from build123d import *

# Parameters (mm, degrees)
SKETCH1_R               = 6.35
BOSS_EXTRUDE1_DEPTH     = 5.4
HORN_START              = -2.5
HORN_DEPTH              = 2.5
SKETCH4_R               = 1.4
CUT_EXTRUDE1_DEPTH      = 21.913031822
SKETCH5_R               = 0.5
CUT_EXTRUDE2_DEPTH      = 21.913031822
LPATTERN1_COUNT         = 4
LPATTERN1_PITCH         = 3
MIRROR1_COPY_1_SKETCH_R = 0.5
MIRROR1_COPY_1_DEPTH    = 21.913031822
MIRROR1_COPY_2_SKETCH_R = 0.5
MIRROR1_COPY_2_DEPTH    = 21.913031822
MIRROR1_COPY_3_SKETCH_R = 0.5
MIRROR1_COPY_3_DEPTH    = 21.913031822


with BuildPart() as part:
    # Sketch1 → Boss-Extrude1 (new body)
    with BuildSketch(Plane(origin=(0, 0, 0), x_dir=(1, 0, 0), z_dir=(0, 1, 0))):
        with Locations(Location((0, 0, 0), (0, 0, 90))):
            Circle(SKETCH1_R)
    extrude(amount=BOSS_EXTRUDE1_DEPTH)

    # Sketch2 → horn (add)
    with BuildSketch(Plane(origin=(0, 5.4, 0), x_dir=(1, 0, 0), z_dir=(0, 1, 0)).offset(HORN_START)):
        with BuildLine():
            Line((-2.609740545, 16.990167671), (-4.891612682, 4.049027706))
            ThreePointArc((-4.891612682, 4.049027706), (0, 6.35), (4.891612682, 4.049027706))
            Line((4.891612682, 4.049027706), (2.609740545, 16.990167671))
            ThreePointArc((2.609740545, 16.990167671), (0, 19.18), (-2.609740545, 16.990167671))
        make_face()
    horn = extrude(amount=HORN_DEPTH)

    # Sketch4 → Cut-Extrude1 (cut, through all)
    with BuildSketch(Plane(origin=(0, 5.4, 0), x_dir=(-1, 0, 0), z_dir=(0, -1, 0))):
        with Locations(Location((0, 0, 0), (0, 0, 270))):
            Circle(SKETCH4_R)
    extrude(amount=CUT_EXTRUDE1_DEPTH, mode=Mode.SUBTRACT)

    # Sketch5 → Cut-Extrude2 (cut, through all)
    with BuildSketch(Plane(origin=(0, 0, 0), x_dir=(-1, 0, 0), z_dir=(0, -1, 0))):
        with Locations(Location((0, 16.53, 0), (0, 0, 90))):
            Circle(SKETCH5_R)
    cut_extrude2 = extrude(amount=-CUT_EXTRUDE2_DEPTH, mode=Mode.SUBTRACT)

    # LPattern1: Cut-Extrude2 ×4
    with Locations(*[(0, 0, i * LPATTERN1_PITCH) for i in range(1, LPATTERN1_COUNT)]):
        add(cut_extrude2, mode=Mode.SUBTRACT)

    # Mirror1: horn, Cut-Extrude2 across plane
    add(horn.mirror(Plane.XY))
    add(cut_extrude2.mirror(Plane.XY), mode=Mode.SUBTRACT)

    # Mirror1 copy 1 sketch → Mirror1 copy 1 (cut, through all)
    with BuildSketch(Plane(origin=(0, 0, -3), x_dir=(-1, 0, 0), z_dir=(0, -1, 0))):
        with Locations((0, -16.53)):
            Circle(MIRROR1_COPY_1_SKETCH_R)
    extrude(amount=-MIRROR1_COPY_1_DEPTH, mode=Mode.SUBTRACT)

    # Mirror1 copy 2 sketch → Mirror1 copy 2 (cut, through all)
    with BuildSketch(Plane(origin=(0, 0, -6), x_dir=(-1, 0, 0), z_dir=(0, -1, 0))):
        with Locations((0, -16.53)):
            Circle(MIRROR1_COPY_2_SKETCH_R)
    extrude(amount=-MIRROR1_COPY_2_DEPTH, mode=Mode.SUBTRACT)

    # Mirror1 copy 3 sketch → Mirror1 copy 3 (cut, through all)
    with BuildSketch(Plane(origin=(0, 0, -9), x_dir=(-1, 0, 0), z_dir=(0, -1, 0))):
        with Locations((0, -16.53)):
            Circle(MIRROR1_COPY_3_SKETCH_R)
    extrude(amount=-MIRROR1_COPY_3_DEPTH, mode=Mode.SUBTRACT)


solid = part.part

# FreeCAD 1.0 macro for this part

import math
import FreeCAD as App
import Part
import Sketcher
from FreeCAD import Vector
Q = App.Units.Quantity

doc = App.newDocument("Part")
body = doc.addObject("PartDesign::Body", "Body")

sketch1 = body.newObject("Sketcher::SketchObject", "Sketch")
sketch1.AttachmentSupport = (doc.getObject("XZ_Plane"), [""])
sketch1.MapMode = "FlatFace"
sketch1.addGeometry(Part.Circle(Vector(0, 0, 0), Vector(0, 0, 1), 6.35), False)
sketch1.addConstraint(Sketcher.Constraint("Coincident", 0, 3, -1, 1))
sketch1.addConstraint(Sketcher.Constraint("Diameter", 0, 12.7))
pad1 = body.newObject("PartDesign::Pad", "Pad")
pad1.Profile = sketch1
pad1.Length = 5.4
pad1.Reversed = True

sketch2 = body.newObject("Sketcher::SketchObject", "Sketch001")
sketch2.AttachmentSupport = (doc.getObject("XZ_Plane"), [""])
sketch2.MapMode = "FlatFace"
sketch2.AttachmentOffset = App.Placement(Vector(0, 0, -2.9), App.Rotation())
sketch2.addGeometry(Part.LineSegment(Vector(-2.609741, -16.990168, 0), Vector(-4.891613, -4.049028, 0)), False)
sketch2.addGeometry(Part.ArcOfCircle(Part.Circle(Vector(0, 0, 0), Vector(0, 0, 1), 6.35), math.radians(-140.383775), math.radians(-39.616225)), False)
sketch2.addGeometry(Part.LineSegment(Vector(4.891613, -4.049028, 0), Vector(2.609741, -16.990168, 0)), False)
sketch2.addGeometry(Part.ArcOfCircle(Part.Circle(Vector(0, -16.53, 0), Vector(0, 0, 1), 2.65), math.radians(-170), math.radians(-10)), False)
sketch2.addConstraint(Sketcher.Constraint("Coincident", 0, 2, 1, 1))
sketch2.addConstraint(Sketcher.Constraint("Coincident", 1, 2, 2, 1))
sketch2.addConstraint(Sketcher.Constraint("Tangent", 2, 2, 3, 2))
sketch2.addConstraint(Sketcher.Constraint("Tangent", 3, 1, 0, 1))
sketch2.addConstraint(Sketcher.Constraint("Coincident", 1, 3, -1, 1))
sketch2.addConstraint(Sketcher.Constraint("Symmetric", 2, 2, 3, 1, -2))
sketch2.addConstraint(Sketcher.Constraint("Angle", 0, Q("100 deg")))
sketch2.addConstraint(Sketcher.Constraint("Radius", 1, 6.35))
sketch2.addConstraint(Sketcher.Constraint("Radius", 3, 2.65))
sketch2.addConstraint(Sketcher.Constraint("DistanceY", 3, 3, -1, 1, 16.53))
pad2 = body.newObject("PartDesign::Pad", "Pad001")
pad2.Profile = sketch2
pad2.Length = 2.5
pad2.Reversed = True

sketch3 = body.newObject("Sketcher::SketchObject", "Sketch002")
sketch3.AttachmentSupport = (doc.getObject("XZ_Plane"), [""])
sketch3.MapMode = "FlatFace"
sketch3.AttachmentOffset = App.Placement(Vector(0, 0, -5.4), App.Rotation())
sketch3.addGeometry(Part.Circle(Vector(0, 0, 0), Vector(0, 0, 1), 1.4), False)
sketch3.addConstraint(Sketcher.Constraint("Coincident", 0, 3, -1, 1))
sketch3.addConstraint(Sketcher.Constraint("Diameter", 0, 2.8))
pocket1 = body.newObject("PartDesign::Pocket", "Pocket")
pocket1.Profile = sketch3
pocket1.Type = "ThroughAll"
pocket1.Reversed = True

sketch4 = body.newObject("Sketcher::SketchObject", "Sketch003")
sketch4.AttachmentSupport = (doc.getObject("XZ_Plane"), [""])
sketch4.MapMode = "FlatFace"
sketch4.addGeometry(Part.Circle(Vector(0, -16.53, 0), Vector(0, 0, 1), 0.5), False)
sketch4.addConstraint(Sketcher.Constraint("PointOnObject", 0, 3, -2))
sketch4.addConstraint(Sketcher.Constraint("Diameter", 0, 1.0))
sketch4.addConstraint(Sketcher.Constraint("DistanceY", 0, 3, -1, 1, 16.53))
pocket2 = body.newObject("PartDesign::Pocket", "Pocket001")
pocket2.Profile = sketch4
pocket2.Type = "ThroughAll"
doc.recompute()

linearpattern = body.newObject("PartDesign::LinearPattern", "LinearPattern")
linearpattern.Originals = [pocket2]
linearpattern.Direction = (doc.getObject("Z_Axis"), [""])
linearpattern.Mode = "offset"
linearpattern.Offset = 3
linearpattern.Occurrences = 4
body.Tip = linearpattern
doc.recompute()

mirrored = body.newObject("PartDesign::Mirrored", "Mirrored")
mirrored.Originals = [pad2, pocket2]
mirrored.MirrorPlane = (doc.getObject("XY_Plane"), [""])
body.Tip = mirrored

sketch5 = body.newObject("Sketcher::SketchObject", "Sketch004")
sketch5.AttachmentSupport = (doc.getObject("XZ_Plane"), [""])
sketch5.MapMode = "FlatFace"
sketch5.addGeometry(Part.Circle(Vector(0, 13.53, 0), Vector(0, 0, 1), 0.5), False)
sketch5.addConstraint(Sketcher.Constraint("PointOnObject", 0, 3, -2))
sketch5.addConstraint(Sketcher.Constraint("Diameter", 0, 1.0))
sketch5.addConstraint(Sketcher.Constraint("DistanceY", -1, 1, 0, 3, 13.53))
pocket3 = body.newObject("PartDesign::Pocket", "Pocket002")
pocket3.Profile = sketch5
pocket3.Type = "ThroughAll"

sketch6 = body.newObject("Sketcher::SketchObject", "Sketch005")
sketch6.AttachmentSupport = (doc.getObject("XZ_Plane"), [""])
sketch6.MapMode = "FlatFace"
sketch6.addGeometry(Part.Circle(Vector(0, 10.53, 0), Vector(0, 0, 1), 0.5), False)
sketch6.addConstraint(Sketcher.Constraint("PointOnObject", 0, 3, -2))
sketch6.addConstraint(Sketcher.Constraint("Diameter", 0, 1.0))
sketch6.addConstraint(Sketcher.Constraint("DistanceY", -1, 1, 0, 3, 10.53))
pocket4 = body.newObject("PartDesign::Pocket", "Pocket003")
pocket4.Profile = sketch6
pocket4.Type = "ThroughAll"

sketch7 = body.newObject("Sketcher::SketchObject", "Sketch006")
sketch7.AttachmentSupport = (doc.getObject("XZ_Plane"), [""])
sketch7.MapMode = "FlatFace"
sketch7.addGeometry(Part.Circle(Vector(0, 7.53, 0), Vector(0, 0, 1), 0.5), False)
sketch7.addConstraint(Sketcher.Constraint("PointOnObject", 0, 3, -2))
sketch7.addConstraint(Sketcher.Constraint("Diameter", 0, 1.0))
sketch7.addConstraint(Sketcher.Constraint("DistanceY", -1, 1, 0, 3, 7.53))
pocket5 = body.newObject("PartDesign::Pocket", "Pocket004")
pocket5.Profile = sketch7
pocket5.Type = "ThroughAll"

doc.recompute()
